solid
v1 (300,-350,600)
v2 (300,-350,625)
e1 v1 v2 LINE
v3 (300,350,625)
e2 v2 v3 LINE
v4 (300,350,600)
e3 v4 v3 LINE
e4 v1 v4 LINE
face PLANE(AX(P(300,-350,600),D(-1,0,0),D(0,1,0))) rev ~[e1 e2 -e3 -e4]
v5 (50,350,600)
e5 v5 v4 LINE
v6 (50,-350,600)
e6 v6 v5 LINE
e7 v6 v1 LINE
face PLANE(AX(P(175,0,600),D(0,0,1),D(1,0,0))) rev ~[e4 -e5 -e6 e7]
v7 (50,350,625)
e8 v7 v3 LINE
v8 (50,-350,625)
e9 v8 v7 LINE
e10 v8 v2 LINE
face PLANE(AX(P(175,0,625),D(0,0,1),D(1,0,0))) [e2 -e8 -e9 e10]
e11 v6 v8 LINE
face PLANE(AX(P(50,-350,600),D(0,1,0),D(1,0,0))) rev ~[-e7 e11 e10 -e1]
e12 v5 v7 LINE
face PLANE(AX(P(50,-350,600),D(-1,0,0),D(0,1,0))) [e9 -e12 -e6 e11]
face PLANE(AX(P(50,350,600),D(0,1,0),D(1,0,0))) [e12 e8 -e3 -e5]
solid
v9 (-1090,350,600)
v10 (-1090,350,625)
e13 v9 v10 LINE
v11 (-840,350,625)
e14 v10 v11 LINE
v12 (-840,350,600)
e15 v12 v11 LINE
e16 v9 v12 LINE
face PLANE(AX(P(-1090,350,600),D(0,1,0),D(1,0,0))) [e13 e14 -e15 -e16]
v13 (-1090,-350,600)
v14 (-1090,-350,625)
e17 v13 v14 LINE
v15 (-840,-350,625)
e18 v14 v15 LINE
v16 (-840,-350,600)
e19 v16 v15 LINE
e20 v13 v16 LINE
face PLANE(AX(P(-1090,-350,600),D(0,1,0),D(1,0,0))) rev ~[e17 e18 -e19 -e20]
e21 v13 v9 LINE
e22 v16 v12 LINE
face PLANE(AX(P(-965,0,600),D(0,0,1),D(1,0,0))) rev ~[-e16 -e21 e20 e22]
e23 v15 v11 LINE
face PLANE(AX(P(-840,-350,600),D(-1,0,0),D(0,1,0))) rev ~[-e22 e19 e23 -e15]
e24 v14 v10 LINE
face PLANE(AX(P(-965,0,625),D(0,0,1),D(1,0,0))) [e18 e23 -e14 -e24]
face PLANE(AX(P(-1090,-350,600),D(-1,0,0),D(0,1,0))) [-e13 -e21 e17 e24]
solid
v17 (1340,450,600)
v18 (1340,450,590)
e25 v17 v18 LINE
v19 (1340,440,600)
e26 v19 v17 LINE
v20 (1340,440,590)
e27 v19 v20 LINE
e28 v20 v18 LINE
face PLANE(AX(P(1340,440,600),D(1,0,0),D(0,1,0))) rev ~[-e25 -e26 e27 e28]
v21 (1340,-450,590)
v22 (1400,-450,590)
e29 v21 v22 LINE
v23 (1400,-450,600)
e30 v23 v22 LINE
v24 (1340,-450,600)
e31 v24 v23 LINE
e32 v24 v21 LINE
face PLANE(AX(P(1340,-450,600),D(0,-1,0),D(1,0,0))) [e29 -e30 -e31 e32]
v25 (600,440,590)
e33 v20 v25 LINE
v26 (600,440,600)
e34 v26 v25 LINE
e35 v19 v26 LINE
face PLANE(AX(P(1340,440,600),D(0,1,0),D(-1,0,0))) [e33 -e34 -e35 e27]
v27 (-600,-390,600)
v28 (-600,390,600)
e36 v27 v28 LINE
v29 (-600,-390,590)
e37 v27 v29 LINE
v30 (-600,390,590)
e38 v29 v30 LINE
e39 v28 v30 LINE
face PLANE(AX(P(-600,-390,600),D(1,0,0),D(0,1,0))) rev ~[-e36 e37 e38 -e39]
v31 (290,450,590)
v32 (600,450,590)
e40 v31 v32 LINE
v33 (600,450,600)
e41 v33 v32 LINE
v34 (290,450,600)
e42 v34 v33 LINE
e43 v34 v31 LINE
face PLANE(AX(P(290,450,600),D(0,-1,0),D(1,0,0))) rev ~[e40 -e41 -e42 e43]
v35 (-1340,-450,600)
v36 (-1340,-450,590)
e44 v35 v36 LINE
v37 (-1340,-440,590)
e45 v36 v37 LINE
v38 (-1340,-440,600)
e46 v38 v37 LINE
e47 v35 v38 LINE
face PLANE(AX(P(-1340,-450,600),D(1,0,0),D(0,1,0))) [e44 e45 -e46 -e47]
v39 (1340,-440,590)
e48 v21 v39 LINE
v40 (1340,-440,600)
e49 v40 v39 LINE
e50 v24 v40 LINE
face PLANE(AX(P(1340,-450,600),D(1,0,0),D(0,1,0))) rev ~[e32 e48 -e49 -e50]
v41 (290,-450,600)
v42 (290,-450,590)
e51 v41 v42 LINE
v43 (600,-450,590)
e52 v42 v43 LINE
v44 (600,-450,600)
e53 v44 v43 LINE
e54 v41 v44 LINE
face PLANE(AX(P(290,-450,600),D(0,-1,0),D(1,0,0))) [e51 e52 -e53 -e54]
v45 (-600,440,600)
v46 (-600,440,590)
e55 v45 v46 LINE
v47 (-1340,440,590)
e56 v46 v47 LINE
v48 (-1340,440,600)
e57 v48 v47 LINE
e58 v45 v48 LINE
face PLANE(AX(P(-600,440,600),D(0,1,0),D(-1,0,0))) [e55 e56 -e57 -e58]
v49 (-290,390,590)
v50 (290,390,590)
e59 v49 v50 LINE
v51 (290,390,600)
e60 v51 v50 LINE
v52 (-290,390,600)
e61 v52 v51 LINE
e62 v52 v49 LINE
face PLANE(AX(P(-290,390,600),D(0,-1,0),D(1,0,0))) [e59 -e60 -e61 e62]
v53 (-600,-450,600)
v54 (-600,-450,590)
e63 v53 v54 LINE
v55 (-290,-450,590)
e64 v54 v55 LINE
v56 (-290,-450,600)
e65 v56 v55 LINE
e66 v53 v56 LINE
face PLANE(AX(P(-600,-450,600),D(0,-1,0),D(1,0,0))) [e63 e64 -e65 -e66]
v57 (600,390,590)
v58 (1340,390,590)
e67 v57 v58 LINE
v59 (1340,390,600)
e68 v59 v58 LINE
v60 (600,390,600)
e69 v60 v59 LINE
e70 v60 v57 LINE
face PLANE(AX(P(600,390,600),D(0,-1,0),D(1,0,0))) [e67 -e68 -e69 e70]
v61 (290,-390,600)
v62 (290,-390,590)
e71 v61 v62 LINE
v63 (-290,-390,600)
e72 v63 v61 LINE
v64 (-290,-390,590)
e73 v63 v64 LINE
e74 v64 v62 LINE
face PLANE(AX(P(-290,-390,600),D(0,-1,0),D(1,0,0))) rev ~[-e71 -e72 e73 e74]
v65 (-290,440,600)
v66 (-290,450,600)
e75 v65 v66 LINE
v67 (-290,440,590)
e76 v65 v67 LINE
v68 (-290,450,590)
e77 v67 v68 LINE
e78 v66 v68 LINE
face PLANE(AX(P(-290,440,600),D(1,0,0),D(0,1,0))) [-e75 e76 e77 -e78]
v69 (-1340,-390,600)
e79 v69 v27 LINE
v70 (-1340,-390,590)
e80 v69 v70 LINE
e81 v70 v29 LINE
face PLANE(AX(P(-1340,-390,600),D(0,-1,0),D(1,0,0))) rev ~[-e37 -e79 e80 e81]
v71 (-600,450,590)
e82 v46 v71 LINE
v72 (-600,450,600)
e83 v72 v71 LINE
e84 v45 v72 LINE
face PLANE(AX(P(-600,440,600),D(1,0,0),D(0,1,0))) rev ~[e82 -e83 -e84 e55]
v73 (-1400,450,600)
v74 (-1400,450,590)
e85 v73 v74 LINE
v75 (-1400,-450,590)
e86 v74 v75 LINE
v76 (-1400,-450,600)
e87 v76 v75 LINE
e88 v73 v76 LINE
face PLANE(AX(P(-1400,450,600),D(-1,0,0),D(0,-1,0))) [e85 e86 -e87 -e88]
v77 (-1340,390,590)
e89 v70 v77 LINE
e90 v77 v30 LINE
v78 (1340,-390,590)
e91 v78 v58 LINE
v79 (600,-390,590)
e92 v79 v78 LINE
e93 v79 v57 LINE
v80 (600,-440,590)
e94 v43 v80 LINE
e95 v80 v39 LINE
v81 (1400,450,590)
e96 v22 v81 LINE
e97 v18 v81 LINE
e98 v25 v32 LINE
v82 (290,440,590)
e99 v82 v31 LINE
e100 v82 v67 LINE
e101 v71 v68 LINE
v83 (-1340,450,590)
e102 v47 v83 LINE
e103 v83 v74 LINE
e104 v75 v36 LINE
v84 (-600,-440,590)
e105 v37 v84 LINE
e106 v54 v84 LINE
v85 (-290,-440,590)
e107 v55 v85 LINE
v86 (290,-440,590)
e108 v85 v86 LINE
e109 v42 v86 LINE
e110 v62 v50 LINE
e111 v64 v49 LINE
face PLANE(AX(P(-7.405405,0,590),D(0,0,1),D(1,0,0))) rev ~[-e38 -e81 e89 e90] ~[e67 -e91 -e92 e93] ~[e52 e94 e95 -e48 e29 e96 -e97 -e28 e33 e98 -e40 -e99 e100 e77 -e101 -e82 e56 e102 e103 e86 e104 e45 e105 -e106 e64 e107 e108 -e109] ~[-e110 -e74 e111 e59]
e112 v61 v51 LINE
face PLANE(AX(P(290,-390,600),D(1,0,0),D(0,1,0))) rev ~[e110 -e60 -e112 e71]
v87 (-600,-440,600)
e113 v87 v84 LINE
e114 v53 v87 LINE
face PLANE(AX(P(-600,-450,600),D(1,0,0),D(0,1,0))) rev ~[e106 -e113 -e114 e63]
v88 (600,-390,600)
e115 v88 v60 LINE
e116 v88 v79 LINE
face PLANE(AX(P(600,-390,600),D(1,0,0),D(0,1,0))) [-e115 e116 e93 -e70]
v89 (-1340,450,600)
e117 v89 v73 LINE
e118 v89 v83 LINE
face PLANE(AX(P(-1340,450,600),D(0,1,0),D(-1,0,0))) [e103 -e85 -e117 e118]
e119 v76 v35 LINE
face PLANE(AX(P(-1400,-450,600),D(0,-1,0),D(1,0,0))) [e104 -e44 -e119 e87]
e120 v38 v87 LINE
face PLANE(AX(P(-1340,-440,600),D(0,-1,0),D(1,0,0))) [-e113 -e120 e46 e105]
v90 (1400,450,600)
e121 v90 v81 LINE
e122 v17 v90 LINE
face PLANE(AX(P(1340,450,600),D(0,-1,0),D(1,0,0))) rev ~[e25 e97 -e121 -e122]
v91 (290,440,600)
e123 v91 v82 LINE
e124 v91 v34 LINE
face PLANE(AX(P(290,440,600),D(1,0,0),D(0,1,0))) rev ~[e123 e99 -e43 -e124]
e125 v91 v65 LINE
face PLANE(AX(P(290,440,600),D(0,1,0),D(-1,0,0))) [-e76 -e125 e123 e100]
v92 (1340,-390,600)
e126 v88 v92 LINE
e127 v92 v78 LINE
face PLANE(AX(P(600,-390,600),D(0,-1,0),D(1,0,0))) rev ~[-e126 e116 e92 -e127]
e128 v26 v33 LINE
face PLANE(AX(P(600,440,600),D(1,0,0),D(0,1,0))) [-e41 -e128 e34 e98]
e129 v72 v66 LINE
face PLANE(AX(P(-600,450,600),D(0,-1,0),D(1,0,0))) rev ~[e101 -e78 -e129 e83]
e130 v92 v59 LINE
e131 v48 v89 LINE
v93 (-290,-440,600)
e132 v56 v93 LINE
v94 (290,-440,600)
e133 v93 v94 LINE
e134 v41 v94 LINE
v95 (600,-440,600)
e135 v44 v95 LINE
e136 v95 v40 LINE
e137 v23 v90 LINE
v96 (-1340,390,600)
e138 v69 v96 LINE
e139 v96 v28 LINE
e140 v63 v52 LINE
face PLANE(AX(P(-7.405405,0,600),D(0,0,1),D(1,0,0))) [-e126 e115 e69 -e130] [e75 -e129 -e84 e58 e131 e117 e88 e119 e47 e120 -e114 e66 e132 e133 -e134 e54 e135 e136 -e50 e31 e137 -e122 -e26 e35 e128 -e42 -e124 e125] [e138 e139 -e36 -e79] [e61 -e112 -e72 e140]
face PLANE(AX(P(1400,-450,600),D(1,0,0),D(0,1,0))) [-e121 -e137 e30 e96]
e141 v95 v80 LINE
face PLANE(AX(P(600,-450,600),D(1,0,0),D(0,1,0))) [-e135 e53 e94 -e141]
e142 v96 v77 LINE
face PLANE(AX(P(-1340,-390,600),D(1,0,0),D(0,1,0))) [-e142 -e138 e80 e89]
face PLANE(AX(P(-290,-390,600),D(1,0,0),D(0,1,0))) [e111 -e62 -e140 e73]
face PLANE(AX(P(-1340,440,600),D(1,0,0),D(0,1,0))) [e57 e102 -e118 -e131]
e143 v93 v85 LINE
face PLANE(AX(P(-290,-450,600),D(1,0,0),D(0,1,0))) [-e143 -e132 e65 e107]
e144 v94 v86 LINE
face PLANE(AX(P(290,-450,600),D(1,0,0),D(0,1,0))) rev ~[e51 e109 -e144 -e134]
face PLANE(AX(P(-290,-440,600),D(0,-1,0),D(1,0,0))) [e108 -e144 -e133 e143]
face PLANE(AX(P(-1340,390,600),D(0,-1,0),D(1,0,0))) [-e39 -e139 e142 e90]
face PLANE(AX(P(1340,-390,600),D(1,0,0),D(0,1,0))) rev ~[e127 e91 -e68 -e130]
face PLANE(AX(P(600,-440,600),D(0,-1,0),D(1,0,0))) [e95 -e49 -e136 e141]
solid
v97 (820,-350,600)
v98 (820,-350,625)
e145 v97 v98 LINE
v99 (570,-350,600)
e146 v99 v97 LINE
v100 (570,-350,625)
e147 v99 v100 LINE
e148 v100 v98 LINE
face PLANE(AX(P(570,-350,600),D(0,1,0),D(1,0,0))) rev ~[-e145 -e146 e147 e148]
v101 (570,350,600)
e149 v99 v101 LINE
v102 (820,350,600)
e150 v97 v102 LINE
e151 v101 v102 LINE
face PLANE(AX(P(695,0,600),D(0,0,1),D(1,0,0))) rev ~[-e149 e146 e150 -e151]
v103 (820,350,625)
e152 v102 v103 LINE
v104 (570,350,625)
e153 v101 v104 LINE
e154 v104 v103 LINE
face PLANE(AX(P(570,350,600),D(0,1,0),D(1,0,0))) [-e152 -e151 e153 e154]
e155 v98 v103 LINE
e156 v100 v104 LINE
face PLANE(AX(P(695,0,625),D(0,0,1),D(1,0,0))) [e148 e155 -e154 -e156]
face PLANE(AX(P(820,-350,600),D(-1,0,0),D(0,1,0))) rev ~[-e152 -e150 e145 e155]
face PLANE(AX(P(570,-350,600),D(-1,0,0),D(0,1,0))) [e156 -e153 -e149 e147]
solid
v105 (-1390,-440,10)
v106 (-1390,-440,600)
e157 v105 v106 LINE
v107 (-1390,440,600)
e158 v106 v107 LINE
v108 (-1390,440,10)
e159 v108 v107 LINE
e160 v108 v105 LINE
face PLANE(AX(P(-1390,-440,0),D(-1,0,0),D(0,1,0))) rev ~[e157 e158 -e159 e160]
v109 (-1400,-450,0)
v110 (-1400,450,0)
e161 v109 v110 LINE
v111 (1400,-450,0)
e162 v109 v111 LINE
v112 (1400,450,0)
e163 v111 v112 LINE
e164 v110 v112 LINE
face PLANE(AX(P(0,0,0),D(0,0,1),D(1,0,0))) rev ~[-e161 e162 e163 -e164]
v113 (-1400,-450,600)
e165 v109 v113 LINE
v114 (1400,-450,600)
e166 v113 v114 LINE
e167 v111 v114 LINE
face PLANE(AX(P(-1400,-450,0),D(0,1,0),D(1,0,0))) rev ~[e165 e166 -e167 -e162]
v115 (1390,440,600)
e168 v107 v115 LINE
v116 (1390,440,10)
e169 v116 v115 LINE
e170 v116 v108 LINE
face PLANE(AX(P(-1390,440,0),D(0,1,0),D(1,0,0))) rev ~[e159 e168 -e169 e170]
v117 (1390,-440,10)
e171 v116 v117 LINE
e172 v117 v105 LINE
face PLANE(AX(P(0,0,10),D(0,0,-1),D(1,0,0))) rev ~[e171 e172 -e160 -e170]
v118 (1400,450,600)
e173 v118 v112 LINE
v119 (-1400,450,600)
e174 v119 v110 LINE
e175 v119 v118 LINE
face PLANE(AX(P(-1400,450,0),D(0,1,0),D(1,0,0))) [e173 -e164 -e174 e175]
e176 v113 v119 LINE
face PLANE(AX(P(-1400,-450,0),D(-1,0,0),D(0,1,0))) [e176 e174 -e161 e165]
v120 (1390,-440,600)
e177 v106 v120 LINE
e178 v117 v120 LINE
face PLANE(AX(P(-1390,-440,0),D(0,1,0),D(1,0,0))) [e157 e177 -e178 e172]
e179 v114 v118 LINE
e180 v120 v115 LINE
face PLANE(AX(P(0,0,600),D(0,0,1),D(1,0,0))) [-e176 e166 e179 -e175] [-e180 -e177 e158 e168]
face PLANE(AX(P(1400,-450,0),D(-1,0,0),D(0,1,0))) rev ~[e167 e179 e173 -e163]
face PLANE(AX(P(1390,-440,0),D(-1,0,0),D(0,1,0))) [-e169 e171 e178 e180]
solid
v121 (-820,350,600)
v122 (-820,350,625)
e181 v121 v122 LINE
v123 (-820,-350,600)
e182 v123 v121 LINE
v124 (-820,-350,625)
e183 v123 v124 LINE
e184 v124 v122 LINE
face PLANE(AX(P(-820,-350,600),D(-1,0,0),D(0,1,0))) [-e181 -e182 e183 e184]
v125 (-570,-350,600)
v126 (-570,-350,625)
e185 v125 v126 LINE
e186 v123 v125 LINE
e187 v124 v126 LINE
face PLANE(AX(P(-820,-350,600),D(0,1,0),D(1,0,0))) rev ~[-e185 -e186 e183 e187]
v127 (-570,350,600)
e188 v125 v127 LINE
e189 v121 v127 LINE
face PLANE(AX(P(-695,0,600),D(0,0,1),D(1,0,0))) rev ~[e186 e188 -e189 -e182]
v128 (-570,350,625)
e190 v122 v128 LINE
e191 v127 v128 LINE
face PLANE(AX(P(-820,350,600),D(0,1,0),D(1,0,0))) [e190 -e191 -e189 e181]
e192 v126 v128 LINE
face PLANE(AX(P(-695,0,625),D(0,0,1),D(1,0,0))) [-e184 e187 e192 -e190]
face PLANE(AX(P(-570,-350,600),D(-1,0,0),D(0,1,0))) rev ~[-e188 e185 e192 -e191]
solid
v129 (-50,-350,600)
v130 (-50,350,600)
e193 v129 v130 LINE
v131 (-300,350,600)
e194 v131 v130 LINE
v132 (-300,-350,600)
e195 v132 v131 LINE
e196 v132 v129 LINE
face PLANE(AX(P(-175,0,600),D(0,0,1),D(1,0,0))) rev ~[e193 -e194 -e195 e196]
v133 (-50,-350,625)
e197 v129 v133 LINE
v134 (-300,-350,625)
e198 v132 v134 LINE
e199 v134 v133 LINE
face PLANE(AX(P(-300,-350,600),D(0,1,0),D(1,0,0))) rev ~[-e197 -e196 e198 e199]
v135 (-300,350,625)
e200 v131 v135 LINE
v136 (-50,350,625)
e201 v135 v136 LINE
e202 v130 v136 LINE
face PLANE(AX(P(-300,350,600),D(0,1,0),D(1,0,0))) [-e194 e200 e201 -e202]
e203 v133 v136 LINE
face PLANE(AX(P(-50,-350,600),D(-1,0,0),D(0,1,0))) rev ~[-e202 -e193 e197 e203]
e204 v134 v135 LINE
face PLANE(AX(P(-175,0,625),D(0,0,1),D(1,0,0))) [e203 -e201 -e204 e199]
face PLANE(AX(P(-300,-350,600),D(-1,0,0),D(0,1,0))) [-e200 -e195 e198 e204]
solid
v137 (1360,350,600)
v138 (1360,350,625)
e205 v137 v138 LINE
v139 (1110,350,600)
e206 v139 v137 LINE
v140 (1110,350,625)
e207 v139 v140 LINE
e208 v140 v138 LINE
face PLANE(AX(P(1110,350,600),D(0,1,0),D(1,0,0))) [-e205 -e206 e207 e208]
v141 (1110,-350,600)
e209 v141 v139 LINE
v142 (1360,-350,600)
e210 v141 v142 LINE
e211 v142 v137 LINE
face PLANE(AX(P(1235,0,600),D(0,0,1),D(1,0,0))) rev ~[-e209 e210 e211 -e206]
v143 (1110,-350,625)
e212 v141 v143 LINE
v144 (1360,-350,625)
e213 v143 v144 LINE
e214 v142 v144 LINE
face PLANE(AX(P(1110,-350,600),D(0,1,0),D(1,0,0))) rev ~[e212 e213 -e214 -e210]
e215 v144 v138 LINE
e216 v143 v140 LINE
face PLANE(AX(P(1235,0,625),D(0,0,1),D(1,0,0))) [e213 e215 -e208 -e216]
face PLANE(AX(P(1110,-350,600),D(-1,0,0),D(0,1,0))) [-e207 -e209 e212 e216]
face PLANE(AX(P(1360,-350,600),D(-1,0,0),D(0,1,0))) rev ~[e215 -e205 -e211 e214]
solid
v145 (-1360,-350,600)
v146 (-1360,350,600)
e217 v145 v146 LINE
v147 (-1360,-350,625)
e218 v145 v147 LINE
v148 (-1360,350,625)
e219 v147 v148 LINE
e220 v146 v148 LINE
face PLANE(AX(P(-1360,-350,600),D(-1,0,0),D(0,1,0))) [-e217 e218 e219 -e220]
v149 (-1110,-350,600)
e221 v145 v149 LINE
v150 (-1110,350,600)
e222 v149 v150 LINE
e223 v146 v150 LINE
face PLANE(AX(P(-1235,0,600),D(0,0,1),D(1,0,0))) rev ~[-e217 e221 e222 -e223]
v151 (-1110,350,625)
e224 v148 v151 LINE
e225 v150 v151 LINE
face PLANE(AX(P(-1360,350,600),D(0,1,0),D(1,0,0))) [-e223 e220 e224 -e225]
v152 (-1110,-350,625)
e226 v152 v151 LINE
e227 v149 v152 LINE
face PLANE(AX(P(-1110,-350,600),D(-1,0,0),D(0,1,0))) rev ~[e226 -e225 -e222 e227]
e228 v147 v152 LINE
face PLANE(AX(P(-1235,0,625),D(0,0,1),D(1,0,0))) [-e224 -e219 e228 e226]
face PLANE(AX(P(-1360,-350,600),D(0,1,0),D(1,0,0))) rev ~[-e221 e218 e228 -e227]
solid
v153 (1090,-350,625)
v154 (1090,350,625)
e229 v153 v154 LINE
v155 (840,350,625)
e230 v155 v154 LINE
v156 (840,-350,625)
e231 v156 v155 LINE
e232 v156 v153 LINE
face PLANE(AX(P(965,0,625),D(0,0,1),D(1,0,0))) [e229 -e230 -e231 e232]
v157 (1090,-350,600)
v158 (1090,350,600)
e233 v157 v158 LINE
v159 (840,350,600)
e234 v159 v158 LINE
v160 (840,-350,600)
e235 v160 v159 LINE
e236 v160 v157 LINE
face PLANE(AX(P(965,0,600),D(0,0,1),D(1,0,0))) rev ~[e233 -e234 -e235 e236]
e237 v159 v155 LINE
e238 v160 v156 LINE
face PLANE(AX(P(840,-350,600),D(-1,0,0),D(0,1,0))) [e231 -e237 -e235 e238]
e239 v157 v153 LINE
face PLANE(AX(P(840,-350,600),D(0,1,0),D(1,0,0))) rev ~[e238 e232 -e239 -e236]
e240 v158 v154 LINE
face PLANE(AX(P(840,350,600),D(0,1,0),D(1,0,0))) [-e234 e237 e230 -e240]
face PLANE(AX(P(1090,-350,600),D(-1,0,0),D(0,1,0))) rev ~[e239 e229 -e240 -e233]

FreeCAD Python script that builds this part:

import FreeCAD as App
import Part
import Sketcher
from FreeCAD import Vector
Q = App.Units.Quantity

doc = App.newDocument("Part")
body = doc.addObject("PartDesign::Body", "Body")

# Sketch on XY plane
sketch1 = doc.addObject("Sketcher::SketchObject", "Sketch")
body.addObject(sketch1)
sketch1.AttachmentSupport = (doc.XY_Plane, [""])
sketch1.MapMode = "FlatFace"
sketch1.addGeometry(Part.LineSegment(Vector(-1400, 450, 0), Vector(-1400, -450, 0)), False)
sketch1.addGeometry(Part.LineSegment(Vector(-1400, -450, 0), Vector(1400, -450, 0)), False)
sketch1.addGeometry(Part.LineSegment(Vector(1400, -450, 0), Vector(1400, 450, 0)), False)
sketch1.addGeometry(Part.LineSegment(Vector(1400, 450, 0), Vector(-1400, 450, 0)), False)
sketch1.addGeometry(Part.LineSegment(Vector(1390, -440, 0), Vector(-1390, -440, 0)), False)
sketch1.addGeometry(Part.LineSegment(Vector(-1390, -440, 0), Vector(-1390, 440, 0)), False)
sketch1.addGeometry(Part.LineSegment(Vector(-1390, 440, 0), Vector(1390, 440, 0)), False)
sketch1.addGeometry(Part.LineSegment(Vector(1390, 440, 0), Vector(1390, -440, 0)), False)
sketch1.addConstraint(Sketcher.Constraint("Coincident", 0, 2, 1, 1))
sketch1.addConstraint(Sketcher.Constraint("Coincident", 1, 2, 2, 1))
sketch1.addConstraint(Sketcher.Constraint("Coincident", 2, 2, 3, 1))
sketch1.addConstraint(Sketcher.Constraint("Coincident", 3, 2, 0, 1))
sketch1.addConstraint(Sketcher.Constraint("Coincident", 4, 2, 5, 1))
sketch1.addConstraint(Sketcher.Constraint("Coincident", 5, 2, 6, 1))
sketch1.addConstraint(Sketcher.Constraint("Coincident", 6, 2, 7, 1))
sketch1.addConstraint(Sketcher.Constraint("Coincident", 7, 2, 4, 1))
sketch1.addConstraint(Sketcher.Constraint("Vertical", 0))
sketch1.addConstraint(Sketcher.Constraint("Horizontal", 1))
sketch1.addConstraint(Sketcher.Constraint("Vertical", 2))
sketch1.addConstraint(Sketcher.Constraint("Horizontal", 3))
sketch1.addConstraint(Sketcher.Constraint("Horizontal", 4))
sketch1.addConstraint(Sketcher.Constraint("Vertical", 5))
sketch1.addConstraint(Sketcher.Constraint("Horizontal", 6))
sketch1.addConstraint(Sketcher.Constraint("Vertical", 7))
sketch1.addConstraint(Sketcher.Constraint("Symmetric", 0, 2, 2, 2, -1, 1))
sketch1.addConstraint(Sketcher.Constraint("Symmetric", 4, 2, 6, 2, -1, 1))
sketch1.addConstraint(Sketcher.Constraint("DistanceX", 1, 1, 1, 2, Q("2800 mm")))
sketch1.addConstraint(Sketcher.Constraint("DistanceX", 4, 2, 4, 1, Q("2780 mm")))
sketch1.addConstraint(Sketcher.Constraint("DistanceY", 0, 2, 0, 1, Q("900 mm")))
sketch1.addConstraint(Sketcher.Constraint("DistanceY", 5, 1, 5, 2, Q("880 mm")))
pad1 = doc.addObject("PartDesign::Pad", "Pad")
body.addObject(pad1)
pad1.Profile = sketch1
pad1.Length = 600

# Sketch on XY plane
sketch2 = doc.addObject("Sketcher::SketchObject", "Sketch001")
body.addObject(sketch2)
sketch2.AttachmentSupport = (doc.XY_Plane, [""])
sketch2.MapMode = "FlatFace"
sketch2.addGeometry(Part.LineSegment(Vector(-1400, -450, 0), Vector(-1400, 450, 0)), False)
sketch2.addGeometry(Part.LineSegment(Vector(-1400, 450, 0), Vector(1400, 450, 0)), False)
sketch2.addGeometry(Part.LineSegment(Vector(1400, 450, 0), Vector(1400, -450, 0)), False)
sketch2.addGeometry(Part.LineSegment(Vector(1400, -450, 0), Vector(-1400, -450, 0)), False)
sketch2.addConstraint(Sketcher.Constraint("Coincident", 0, 2, 1, 1))
sketch2.addConstraint(Sketcher.Constraint("Coincident", 1, 2, 2, 1))
sketch2.addConstraint(Sketcher.Constraint("Coincident", 2, 2, 3, 1))
sketch2.addConstraint(Sketcher.Constraint("Coincident", 3, 2, 0, 1))
sketch2.addConstraint(Sketcher.Constraint("Vertical", 0))
sketch2.addConstraint(Sketcher.Constraint("Horizontal", 1))
sketch2.addConstraint(Sketcher.Constraint("Vertical", 2))
sketch2.addConstraint(Sketcher.Constraint("Horizontal", 3))
sketch2.addConstraint(Sketcher.Constraint("Symmetric", 0, 2, 2, 2, -1, 1))
sketch2.addConstraint(Sketcher.Constraint("DistanceX", 1, 1, 1, 2, Q("2800 mm")))
sketch2.addConstraint(Sketcher.Constraint("DistanceY", 0, 1, 0, 2, Q("900 mm")))
pad2 = doc.addObject("PartDesign::Pad", "Pad001")
body.addObject(pad2)
pad2.Profile = sketch2
pad2.Length = 10
body2 = doc.addObject("PartDesign::Body", "Body001")

# Sketch on XY plane
sketch3 = doc.addObject("Sketcher::SketchObject", "Sketch002")
body2.addObject(sketch3)
sketch3.AttachmentSupport = (doc.getObject("XY_Plane001"), [""])
sketch3.MapMode = "FlatFace"
sketch3.AttachmentOffset = App.Placement(Vector(0, 0, 600), App.Rotation())
sketch3.addGeometry(Part.LineSegment(Vector(-1400, 450, 0), Vector(-1400, -450, 0)), False)
sketch3.addGeometry(Part.LineSegment(Vector(-1400, -450, 0), Vector(-1340, -450, 0)), False)
sketch3.addGeometry(Part.LineSegment(Vector(-1340, -450, 0), Vector(-1340, -440, 0)), False)
sketch3.addGeometry(Part.LineSegment(Vector(-1340, -440, 0), Vector(-600, -440, 0)), False)
sketch3.addGeometry(Part.LineSegment(Vector(-600, -440, 0), Vector(-600, -450, 0)), False)
sketch3.addGeometry(Part.LineSegment(Vector(-600, -450, 0), Vector(-290, -450, 0)), False)
sketch3.addGeometry(Part.LineSegment(Vector(-290, -450, 0), Vector(-290, -440, 0)), False)
sketch3.addGeometry(Part.LineSegment(Vector(-290, -440, 0), Vector(290, -440, 0)), False)
sketch3.addGeometry(Part.LineSegment(Vector(290, -440, 0), Vector(290, -450, 0)), False)
sketch3.addGeometry(Part.LineSegment(Vector(290, -450, 0), Vector(600, -450, 0)), False)
sketch3.addGeometry(Part.LineSegment(Vector(600, -450, 0), Vector(600, -440, 0)), False)
sketch3.addGeometry(Part.LineSegment(Vector(600, -440, 0), Vector(1340, -440, 0)), False)
sketch3.addGeometry(Part.LineSegment(Vector(1340, -440, 0), Vector(1340, -450, 0)), False)
sketch3.addGeometry(Part.LineSegment(Vector(1340, -450, 0), Vector(1400, -450, 0)), False)
sketch3.addGeometry(Part.LineSegment(Vector(1400, -450, 0), Vector(1400, 450, 0)), False)
sketch3.addGeometry(Part.LineSegment(Vector(1400, 450, 0), Vector(1340, 450, 0)), False)
sketch3.addGeometry(Part.LineSegment(Vector(1340, 450, 0), Vector(1340, 440, 0)), False)
sketch3.addGeometry(Part.LineSegment(Vector(1340, 440, 0), Vector(600, 440, 0)), False)
sketch3.addGeometry(Part.LineSegment(Vector(600, 440, 0), Vector(600, 450, 0)), False)
sketch3.addGeometry(Part.LineSegment(Vector(600, 450, 0), Vector(290, 450, 0)), False)
sketch3.addGeometry(Part.LineSegment(Vector(290, 450, 0), Vector(290, 440, 0)), False)
sketch3.addGeometry(Part.LineSegment(Vector(290, 440, 0), Vector(-290, 440, 0)), False)
sketch3.addGeometry(Part.LineSegment(Vector(-290, 440, 0), Vector(-290, 450, 0)), False)
sketch3.addGeometry(Part.LineSegment(Vector(-290, 450, 0), Vector(-600, 450, 0)), False)
sketch3.addGeometry(Part.LineSegment(Vector(-600, 450, 0), Vector(-600, 440, 0)), False)
sketch3.addGeometry(Part.LineSegment(Vector(-600, 440, 0), Vector(-1340, 440, 0)), False)
sketch3.addGeometry(Part.LineSegment(Vector(-1340, 440, 0), Vector(-1340, 450, 0)), False)
sketch3.addGeometry(Part.LineSegment(Vector(-1340, 450, 0), Vector(-1400, 450, 0)), False)
sketch3.addGeometry(Part.LineSegment(Vector(-600, -390, 0), Vector(-1340, -390, 0)), False)
sketch3.addGeometry(Part.LineSegment(Vector(-1340, -390, 0), Vector(-1340, 390, 0)), False)
sketch3.addGeometry(Part.LineSegment(Vector(-1340, 390, 0), Vector(-600, 390, 0)), False)
sketch3.addGeometry(Part.LineSegment(Vector(-600, 390, 0), Vector(-600, -390, 0)), False)
sketch3.addGeometry(Part.LineSegment(Vector(290, -390, 0), Vector(-290, -390, 0)), False)
sketch3.addGeometry(Part.LineSegment(Vector(-290, -390, 0), Vector(-290, 390, 0)), False)
sketch3.addGeometry(Part.LineSegment(Vector(-290, 390, 0), Vector(290, 390, 0)), False)
sketch3.addGeometry(Part.LineSegment(Vector(290, 390, 0), Vector(290, -390, 0)), False)
sketch3.addGeometry(Part.LineSegment(Vector(1340, -390, 0), Vector(600, -390, 0)), False)
sketch3.addGeometry(Part.LineSegment(Vector(600, -390, 0), Vector(600, 390, 0)), False)
sketch3.addGeometry(Part.LineSegment(Vector(600, 390, 0), Vector(1340, 390, 0)), False)
sketch3.addGeometry(Part.LineSegment(Vector(1340, 390, 0), Vector(1340, -390, 0)), False)
sketch3.addConstraint(Sketcher.Constraint("Coincident", 0, 2, 1, 1))
sketch3.addConstraint(Sketcher.Constraint("Coincident", 1, 2, 2, 1))
sketch3.addConstraint(Sketcher.Constraint("Coincident", 2, 2, 3, 1))
sketch3.addConstraint(Sketcher.Constraint("Coincident", 3, 2, 4, 1))
sketch3.addConstraint(Sketcher.Constraint("Coincident", 4, 2, 5, 1))
sketch3.addConstraint(Sketcher.Constraint("Coincident", 5, 2, 6, 1))
sketch3.addConstraint(Sketcher.Constraint("Coincident", 6, 2, 7, 1))
sketch3.addConstraint(Sketcher.Constraint("Coincident", 7, 2, 8, 1))
sketch3.addConstraint(Sketcher.Constraint("Coincident", 8, 2, 9, 1))
sketch3.addConstraint(Sketcher.Constraint("Coincident", 9, 2, 10, 1))
sketch3.addConstraint(Sketcher.Constraint("Coincident", 10, 2, 11, 1))
sketch3.addConstraint(Sketcher.Constraint("Coincident", 11, 2, 12, 1))
sketch3.addConstraint(Sketcher.Constraint("Coincident", 12, 2, 13, 1))
sketch3.addConstraint(Sketcher.Constraint("Coincident", 13, 2, 14, 1))
sketch3.addConstraint(Sketcher.Constraint("Coincident", 14, 2, 15, 1))
sketch3.addConstraint(Sketcher.Constraint("Coincident", 15, 2, 16, 1))
sketch3.addConstraint(Sketcher.Constraint("Coincident", 16, 2, 17, 1))
sketch3.addConstraint(Sketcher.Constraint("Coincident", 17, 2, 18, 1))
sketch3.addConstraint(Sketcher.Constraint("Coincident", 18, 2, 19, 1))
sketch3.addConstraint(Sketcher.Constraint("Coincident", 19, 2, 20, 1))
sketch3.addConstraint(Sketcher.Constraint("Coincident", 20, 2, 21, 1))
sketch3.addConstraint(Sketcher.Constraint("Coincident", 21, 2, 22, 1))
sketch3.addConstraint(Sketcher.Constraint("Coincident", 22, 2, 23, 1))
sketch3.addConstraint(Sketcher.Constraint("Coincident", 23, 2, 24, 1))
sketch3.addConstraint(Sketcher.Constraint("Coincident", 24, 2, 25, 1))
sketch3.addConstraint(Sketcher.Constraint("Coincident", 25, 2, 26, 1))
sketch3.addConstraint(Sketcher.Constraint("Coincident", 26, 2, 27, 1))
sketch3.addConstraint(Sketcher.Constraint("Coincident", 27, 2, 0, 1))
sketch3.addConstraint(Sketcher.Constraint("Coincident", 28, 2, 29, 1))
sketch3.addConstraint(Sketcher.Constraint("Coincident", 29, 2, 30, 1))
sketch3.addConstraint(Sketcher.Constraint("Coincident", 30, 2, 31, 1))
sketch3.addConstraint(Sketcher.Constraint("Coincident", 31, 2, 28, 1))
sketch3.addConstraint(Sketcher.Constraint("Coincident", 32, 2, 33, 1))
sketch3.addConstraint(Sketcher.Constraint("Coincident", 33, 2, 34, 1))
sketch3.addConstraint(Sketcher.Constraint("Coincident", 34, 2, 35, 1))
sketch3.addConstraint(Sketcher.Constraint("Coincident", 35, 2, 32, 1))
sketch3.addConstraint(Sketcher.Constraint("Coincident", 36, 2, 37, 1))
sketch3.addConstraint(Sketcher.Constraint("Coincident", 37, 2, 38, 1))
sketch3.addConstraint(Sketcher.Constraint("Coincident", 38, 2, 39, 1))
sketch3.addConstraint(Sketcher.Constraint("Coincident", 39, 2, 36, 1))
sketch3.addConstraint(Sketcher.Constraint("Vertical", 0))
sketch3.addConstraint(Sketcher.Constraint("Horizontal", 1))
sketch3.addConstraint(Sketcher.Constraint("Vertical", 2))
sketch3.addConstraint(Sketcher.Constraint("Horizontal", 3))
sketch3.addConstraint(Sketcher.Constraint("Vertical", 4))
sketch3.addConstraint(Sketcher.Constraint("Horizontal", 5))
sketch3.addConstraint(Sketcher.Constraint("Vertical", 6))
sketch3.addConstraint(Sketcher.Constraint("Horizontal", 7))
sketch3.addConstraint(Sketcher.Constraint("Vertical", 8))
sketch3.addConstraint(Sketcher.Constraint("Horizontal", 9))
sketch3.addConstraint(Sketcher.Constraint("Vertical", 10))
sketch3.addConstraint(Sketcher.Constraint("Horizontal", 11))
sketch3.addConstraint(Sketcher.Constraint("Vertical", 12))
sketch3.addConstraint(Sketcher.Constraint("Horizontal", 13))
sketch3.addConstraint(Sketcher.Constraint("Vertical", 14))
sketch3.addConstraint(Sketcher.Constraint("Horizontal", 15))
sketch3.addConstraint(Sketcher.Constraint("Vertical", 16))
sketch3.addConstraint(Sketcher.Constraint("Horizontal", 17))
sketch3.addConstraint(Sketcher.Constraint("Vertical", 18))
sketch3.addConstraint(Sketcher.Constraint("Horizontal", 19))
sketch3.addConstraint(Sketcher.Constraint("Vertical", 20))
sketch3.addConstraint(Sketcher.Constraint("Horizontal", 21))
sketch3.addConstraint(Sketcher.Constraint("Vertical", 22))
sketch3.addConstraint(Sketcher.Constraint("Horizontal", 23))
sketch3.addConstraint(Sketcher.Constraint("Vertical", 24))
sketch3.addConstraint(Sketcher.Constraint("Horizontal", 25))
sketch3.addConstraint(Sketcher.Constraint("Vertical", 26))
sketch3.addConstraint(Sketcher.Constraint("Horizontal", 27))
sketch3.addConstraint(Sketcher.Constraint("Horizontal", 28))
sketch3.addConstraint(Sketcher.Constraint("Vertical", 29))
sketch3.addConstraint(Sketcher.Constraint("Horizontal", 30))
sketch3.addConstraint(Sketcher.Constraint("Vertical", 31))
sketch3.addConstraint(Sketcher.Constraint("Horizontal", 32))
sketch3.addConstraint(Sketcher.Constraint("Vertical", 33))
sketch3.addConstraint(Sketcher.Constraint("Horizontal", 34))
sketch3.addConstraint(Sketcher.Constraint("Vertical", 35))
sketch3.addConstraint(Sketcher.Constraint("Horizontal", 36))
sketch3.addConstraint(Sketcher.Constraint("Vertical", 37))
sketch3.addConstraint(Sketcher.Constraint("Horizontal", 38))
sketch3.addConstraint(Sketcher.Constraint("Vertical", 39))
sketch3.addConstraint(Sketcher.Constraint("Symmetric", 0, 2, 14, 2, -1, 1))
sketch3.addConstraint(Sketcher.Constraint("Symmetric", 2, 2, 16, 2, -1, 1))
sketch3.addConstraint(Sketcher.Constraint("Symmetric", 4, 2, 18, 2, -1, 1))
sketch3.addConstraint(Sketcher.Constraint("Symmetric", 6, 2, 20, 2, -1, 1))
sketch3.addConstraint(Sketcher.Constraint("Symmetric", 8, 2, 22, 2, -1, 1))
sketch3.addConstraint(Sketcher.Constraint("Symmetric", 10, 2, 24, 2, -1, 1))
sketch3.addConstraint(Sketcher.Constraint("Symmetric", 12, 2, 26, 2, -1, 1))
sketch3.addConstraint(Sketcher.Constraint("Symmetric", 32, 2, 34, 2, -1, 1))
sketch3.addConstraint(Sketcher.Constraint("Symmetric", 30, 2, 36, 2, -1, 1))
sketch3.addConstraint(Sketcher.Constraint("Symmetric", 28, 2, 38, 2, -1, 1))
sketch3.addConstraint(Sketcher.Constraint("Symmetric", 5, 2, 8, 2, -2))
sketch3.addConstraint(Sketcher.Constraint("Symmetric", 3, 2, 10, 2, -2))
sketch3.addConstraint(Sketcher.Constraint("Symmetric", 1, 2, 12, 2, -2))
sketch3.addConstraint(Sketcher.Constraint("Horizontal", 1, 2, 4, 2))
sketch3.addConstraint(Sketcher.Constraint("Horizontal", 3, 2, 6, 2))
sketch3.addConstraint(Sketcher.Constraint("Horizontal", 31, 2, 32, 2))
sketch3.addConstraint(Sketcher.Constraint("Horizontal", 30, 2, 33, 2))
sketch3.addConstraint(Sketcher.Constraint("Vertical", 26, 2, 28, 2))
sketch3.addConstraint(Sketcher.Constraint("Vertical", 24, 2, 30, 2))
sketch3.addConstraint(Sketcher.Constraint("Vertical", 22, 2, 32, 2))
sketch3.addConstraint(Sketcher.Constraint("DistanceX", 1, 1, 1, 2, Q("60 mm")))
sketch3.addConstraint(Sketcher.Constraint("DistanceX", 3, 1, 3, 2, Q("740 mm")))
sketch3.addConstraint(Sketcher.Constraint("DistanceX", 5, 1, 5, 2, Q("310 mm")))
sketch3.addConstraint(Sketcher.Constraint("DistanceX", 7, 1, 7, 2, Q("580 mm")))
sketch3.addConstraint(Sketcher.Constraint("DistanceY", 0, 2, 0, 1, Q("900 mm")))
sketch3.addConstraint(Sketcher.Constraint("DistanceY", 2, 1, 2, 2, Q("10 mm")))
sketch3.addConstraint(Sketcher.Constraint("DistanceY", 29, 1, 29, 2, Q("780 mm")))
pad3 = doc.addObject("PartDesign::Pad", "Pad002")
body2.addObject(pad3)
pad3.Profile = sketch3
pad3.Length = 10
pad3.Reversed = True
body3 = doc.addObject("PartDesign::Body", "Body002")
body3.AllowCompound = True

# Sketch on XY plane
sketch4 = doc.addObject("Sketcher::SketchObject", "Sketch003")
body3.addObject(sketch4)
sketch4.AttachmentSupport = (doc.getObject("XY_Plane002"), [""])
sketch4.MapMode = "FlatFace"
sketch4.AttachmentOffset = App.Placement(Vector(0, 0, 600), App.Rotation())
sketch4.addGeometry(Part.LineSegment(Vector(-1360, 350, 0), Vector(-1360, -350, 0)), False)
sketch4.addGeometry(Part.LineSegment(Vector(-1360, -350, 0), Vector(-1110, -350, 0)), False)
sketch4.addGeometry(Part.LineSegment(Vector(-1110, -350, 0), Vector(-1110, 350, 0)), False)
sketch4.addGeometry(Part.LineSegment(Vector(-1110, 350, 0), Vector(-1360, 350, 0)), False)
sketch4.addGeometry(Part.LineSegment(Vector(-1090, 350, 0), Vector(-1090, -350, 0)), False)
sketch4.addGeometry(Part.LineSegment(Vector(-1090, -350, 0), Vector(-840, -350, 0)), False)
sketch4.addGeometry(Part.LineSegment(Vector(-840, -350, 0), Vector(-840, 350, 0)), False)
sketch4.addGeometry(Part.LineSegment(Vector(-840, 350, 0), Vector(-1090, 350, 0)), False)
sketch4.addGeometry(Part.LineSegment(Vector(-820, 350, 0), Vector(-820, -350, 0)), False)
sketch4.addGeometry(Part.LineSegment(Vector(-820, -350, 0), Vector(-570, -350, 0)), False)
sketch4.addGeometry(Part.LineSegment(Vector(-570, -350, 0), Vector(-570, 350, 0)), False)
sketch4.addGeometry(Part.LineSegment(Vector(-570, 350, 0), Vector(-820, 350, 0)), False)
sketch4.addGeometry(Part.LineSegment(Vector(-300, 350, 0), Vector(-300, -350, 0)), False)
sketch4.addGeometry(Part.LineSegment(Vector(-300, -350, 0), Vector(-50, -350, 0)), False)
sketch4.addGeometry(Part.LineSegment(Vector(-50, -350, 0), Vector(-50, 350, 0)), False)
sketch4.addGeometry(Part.LineSegment(Vector(-50, 350, 0), Vector(-300, 350, 0)), False)
sketch4.addGeometry(Part.LineSegment(Vector(50, 350, 0), Vector(50, -350, 0)), False)
sketch4.addGeometry(Part.LineSegment(Vector(50, -350, 0), Vector(300, -350, 0)), False)
sketch4.addGeometry(Part.LineSegment(Vector(300, -350, 0), Vector(300, 350, 0)), False)
sketch4.addGeometry(Part.LineSegment(Vector(300, 350, 0), Vector(50, 350, 0)), False)
sketch4.addGeometry(Part.LineSegment(Vector(840, 350, 0), Vector(840, -350, 0)), False)
sketch4.addGeometry(Part.LineSegment(Vector(840, -350, 0), Vector(1090, -350, 0)), False)
sketch4.addGeometry(Part.LineSegment(Vector(1090, -350, 0), Vector(1090, 350, 0)), False)
sketch4.addGeometry(Part.LineSegment(Vector(1090, 350, 0), Vector(840, 350, 0)), False)
sketch4.addGeometry(Part.LineSegment(Vector(570, 350, 0), Vector(570, -350, 0)), False)
sketch4.addGeometry(Part.LineSegment(Vector(570, -350, 0), Vector(820, -350, 0)), False)
sketch4.addGeometry(Part.LineSegment(Vector(820, -350, 0), Vector(820, 350, 0)), False)
sketch4.addGeometry(Part.LineSegment(Vector(820, 350, 0), Vector(570, 350, 0)), False)
sketch4.addGeometry(Part.LineSegment(Vector(1110, 350, 0), Vector(1110, -350, 0)), False)
sketch4.addGeometry(Part.LineSegment(Vector(1110, -350, 0), Vector(1360, -350, 0)), False)
sketch4.addGeometry(Part.LineSegment(Vector(1360, -350, 0), Vector(1360, 350, 0)), False)
sketch4.addGeometry(Part.LineSegment(Vector(1360, 350, 0), Vector(1110, 350, 0)), False)
sketch4.addConstraint(Sketcher.Constraint("Coincident", 0, 2, 1, 1))
sketch4.addConstraint(Sketcher.Constraint("Coincident", 1, 2, 2, 1))
sketch4.addConstraint(Sketcher.Constraint("Coincident", 2, 2, 3, 1))
sketch4.addConstraint(Sketcher.Constraint("Coincident", 3, 2, 0, 1))
sketch4.addConstraint(Sketcher.Constraint("Coincident", 4, 2, 5, 1))
sketch4.addConstraint(Sketcher.Constraint("Coincident", 5, 2, 6, 1))
sketch4.addConstraint(Sketcher.Constraint("Coincident", 6, 2, 7, 1))
sketch4.addConstraint(Sketcher.Constraint("Coincident", 7, 2, 4, 1))
sketch4.addConstraint(Sketcher.Constraint("Coincident", 8, 2, 9, 1))
sketch4.addConstraint(Sketcher.Constraint("Coincident", 9, 2, 10, 1))
sketch4.addConstraint(Sketcher.Constraint("Coincident", 10, 2, 11, 1))
sketch4.addConstraint(Sketcher.Constraint("Coincident", 11, 2, 8, 1))
sketch4.addConstraint(Sketcher.Constraint("Coincident", 12, 2, 13, 1))
sketch4.addConstraint(Sketcher.Constraint("Coincident", 13, 2, 14, 1))
sketch4.addConstraint(Sketcher.Constraint("Coincident", 14, 2, 15, 1))
sketch4.addConstraint(Sketcher.Constraint("Coincident", 15, 2, 12, 1))
sketch4.addConstraint(Sketcher.Constraint("Coincident", 16, 2, 17, 1))
sketch4.addConstraint(Sketcher.Constraint("Coincident", 17, 2, 18, 1))
sketch4.addConstraint(Sketcher.Constraint("Coincident", 18, 2, 19, 1))
sketch4.addConstraint(Sketcher.Constraint("Coincident", 19, 2, 16, 1))
sketch4.addConstraint(Sketcher.Constraint("Coincident", 20, 2, 21, 1))
sketch4.addConstraint(Sketcher.Constraint("Coincident", 21, 2, 22, 1))
sketch4.addConstraint(Sketcher.Constraint("Coincident", 22, 2, 23, 1))
sketch4.addConstraint(Sketcher.Constraint("Coincident", 23, 2, 20, 1))
sketch4.addConstraint(Sketcher.Constraint("Coincident", 24, 2, 25, 1))
sketch4.addConstraint(Sketcher.Constraint("Coincident", 25, 2, 26, 1))
sketch4.addConstraint(Sketcher.Constraint("Coincident", 26, 2, 27, 1))
sketch4.addConstraint(Sketcher.Constraint("Coincident", 27, 2, 24, 1))
sketch4.addConstraint(Sketcher.Constraint("Coincident", 28, 2, 29, 1))
sketch4.addConstraint(Sketcher.Constraint("Coincident", 29, 2, 30, 1))
sketch4.addConstraint(Sketcher.Constraint("Coincident", 30, 2, 31, 1))
sketch4.addConstraint(Sketcher.Constraint("Coincident", 31, 2, 28, 1))
sketch4.addConstraint(Sketcher.Constraint("Vertical", 0))
sketch4.addConstraint(Sketcher.Constraint("Horizontal", 1))
sketch4.addConstraint(Sketcher.Constraint("Vertical", 2))
sketch4.addConstraint(Sketcher.Constraint("Horizontal", 3))
sketch4.addConstraint(Sketcher.Constraint("Vertical", 4))
sketch4.addConstraint(Sketcher.Constraint("Horizontal", 5))
sketch4.addConstraint(Sketcher.Constraint("Vertical", 6))
sketch4.addConstraint(Sketcher.Constraint("Horizontal", 7))
sketch4.addConstraint(Sketcher.Constraint("Vertical", 8))
sketch4.addConstraint(Sketcher.Constraint("Horizontal", 9))
sketch4.addConstraint(Sketcher.Constraint("Vertical", 10))
sketch4.addConstraint(Sketcher.Constraint("Horizontal", 11))
sketch4.addConstraint(Sketcher.Constraint("Vertical", 12))
sketch4.addConstraint(Sketcher.Constraint("Horizontal", 13))
sketch4.addConstraint(Sketcher.Constraint("Vertical", 14))
sketch4.addConstraint(Sketcher.Constraint("Horizontal", 15))
sketch4.addConstraint(Sketcher.Constraint("Vertical", 16))
sketch4.addConstraint(Sketcher.Constraint("Horizontal", 17))
sketch4.addConstraint(Sketcher.Constraint("Vertical", 18))
sketch4.addConstraint(Sketcher.Constraint("Horizontal", 19))
sketch4.addConstraint(Sketcher.Constraint("Vertical", 20))
sketch4.addConstraint(Sketcher.Constraint("Horizontal", 21))
sketch4.addConstraint(Sketcher.Constraint("Vertical", 22))
sketch4.addConstraint(Sketcher.Constraint("Horizontal", 23))
sketch4.addConstraint(Sketcher.Constraint("Vertical", 24))
sketch4.addConstraint(Sketcher.Constraint("Horizontal", 25))
sketch4.addConstraint(Sketcher.Constraint("Vertical", 26))
sketch4.addConstraint(Sketcher.Constraint("Horizontal", 27))
sketch4.addConstraint(Sketcher.Constraint("Vertical", 28))
sketch4.addConstraint(Sketcher.Constraint("Horizontal", 29))
sketch4.addConstraint(Sketcher.Constraint("Vertical", 30))
sketch4.addConstraint(Sketcher.Constraint("Horizontal", 31))
sketch4.addConstraint(Sketcher.Constraint("Symmetric", 14, 2, 16, 2, -1, 1))
sketch4.addConstraint(Sketcher.Constraint("Symmetric", 12, 2, 18, 2, -1, 1))
sketch4.addConstraint(Sketcher.Constraint("Symmetric", 6, 2, 20, 2, -1, 1))
sketch4.addConstraint(Sketcher.Constraint("Symmetric", 4, 2, 22, 2, -1, 1))
sketch4.addConstraint(Sketcher.Constraint("Symmetric", 10, 2, 24, 2, -1, 1))
sketch4.addConstraint(Sketcher.Constraint("Symmetric", 8, 2, 26, 2, -1, 1))
sketch4.addConstraint(Sketcher.Constraint("Symmetric", 2, 2, 28, 2, -1, 1))
sketch4.addConstraint(Sketcher.Constraint("Symmetric", 0, 2, 30, 2, -1, 1))
sketch4.addConstraint(Sketcher.Constraint("Horizontal", 1, 2, 4, 2))
sketch4.addConstraint(Sketcher.Constraint("Horizontal", 3, 2, 6, 2))
sketch4.addConstraint(Sketcher.Constraint("Horizontal", 5, 2, 8, 2))
sketch4.addConstraint(Sketcher.Constraint("Horizontal", 7, 2, 10, 2))
sketch4.addConstraint(Sketcher.Constraint("Horizontal", 9, 2, 12, 2))
sketch4.addConstraint(Sketcher.Constraint("Horizontal", 11, 2, 14, 2))
sketch4.addConstraint(Sketcher.Constraint("Horizontal", 13, 2, 16, 2))
sketch4.addConstraint(Sketcher.Constraint("Equal", 3, 5))
sketch4.addConstraint(Sketcher.Constraint("Equal", 7, 9))
sketch4.addConstraint(Sketcher.Constraint("Equal", 11, 13))
sketch4.addConstraint(Sketcher.Constraint("DistanceX", 1, 1, 1, 2, Q("250 mm")))
sketch4.addConstraint(Sketcher.Constraint("DistanceY", 0, 2, 0, 1, Q("700 mm")))
sketch4.addConstraint(Sketcher.Constraint("DistanceX", 0, 2, -1, 1, Q("1360 mm")))
sketch4.addConstraint(Sketcher.Constraint("DistanceX", 4, 2, -1, 1, Q("1090 mm")))
sketch4.addConstraint(Sketcher.Constraint("DistanceX", 8, 2, -1, 1, Q("820 mm")))
sketch4.addConstraint(Sketcher.Constraint("DistanceX", 12, 2, -1, 1, Q("300 mm")))
pad4 = doc.addObject("PartDesign::Pad", "Pad003")
body3.addObject(pad4)
pad4.Profile = sketch4
pad4.Length = 25

doc.recompute()
